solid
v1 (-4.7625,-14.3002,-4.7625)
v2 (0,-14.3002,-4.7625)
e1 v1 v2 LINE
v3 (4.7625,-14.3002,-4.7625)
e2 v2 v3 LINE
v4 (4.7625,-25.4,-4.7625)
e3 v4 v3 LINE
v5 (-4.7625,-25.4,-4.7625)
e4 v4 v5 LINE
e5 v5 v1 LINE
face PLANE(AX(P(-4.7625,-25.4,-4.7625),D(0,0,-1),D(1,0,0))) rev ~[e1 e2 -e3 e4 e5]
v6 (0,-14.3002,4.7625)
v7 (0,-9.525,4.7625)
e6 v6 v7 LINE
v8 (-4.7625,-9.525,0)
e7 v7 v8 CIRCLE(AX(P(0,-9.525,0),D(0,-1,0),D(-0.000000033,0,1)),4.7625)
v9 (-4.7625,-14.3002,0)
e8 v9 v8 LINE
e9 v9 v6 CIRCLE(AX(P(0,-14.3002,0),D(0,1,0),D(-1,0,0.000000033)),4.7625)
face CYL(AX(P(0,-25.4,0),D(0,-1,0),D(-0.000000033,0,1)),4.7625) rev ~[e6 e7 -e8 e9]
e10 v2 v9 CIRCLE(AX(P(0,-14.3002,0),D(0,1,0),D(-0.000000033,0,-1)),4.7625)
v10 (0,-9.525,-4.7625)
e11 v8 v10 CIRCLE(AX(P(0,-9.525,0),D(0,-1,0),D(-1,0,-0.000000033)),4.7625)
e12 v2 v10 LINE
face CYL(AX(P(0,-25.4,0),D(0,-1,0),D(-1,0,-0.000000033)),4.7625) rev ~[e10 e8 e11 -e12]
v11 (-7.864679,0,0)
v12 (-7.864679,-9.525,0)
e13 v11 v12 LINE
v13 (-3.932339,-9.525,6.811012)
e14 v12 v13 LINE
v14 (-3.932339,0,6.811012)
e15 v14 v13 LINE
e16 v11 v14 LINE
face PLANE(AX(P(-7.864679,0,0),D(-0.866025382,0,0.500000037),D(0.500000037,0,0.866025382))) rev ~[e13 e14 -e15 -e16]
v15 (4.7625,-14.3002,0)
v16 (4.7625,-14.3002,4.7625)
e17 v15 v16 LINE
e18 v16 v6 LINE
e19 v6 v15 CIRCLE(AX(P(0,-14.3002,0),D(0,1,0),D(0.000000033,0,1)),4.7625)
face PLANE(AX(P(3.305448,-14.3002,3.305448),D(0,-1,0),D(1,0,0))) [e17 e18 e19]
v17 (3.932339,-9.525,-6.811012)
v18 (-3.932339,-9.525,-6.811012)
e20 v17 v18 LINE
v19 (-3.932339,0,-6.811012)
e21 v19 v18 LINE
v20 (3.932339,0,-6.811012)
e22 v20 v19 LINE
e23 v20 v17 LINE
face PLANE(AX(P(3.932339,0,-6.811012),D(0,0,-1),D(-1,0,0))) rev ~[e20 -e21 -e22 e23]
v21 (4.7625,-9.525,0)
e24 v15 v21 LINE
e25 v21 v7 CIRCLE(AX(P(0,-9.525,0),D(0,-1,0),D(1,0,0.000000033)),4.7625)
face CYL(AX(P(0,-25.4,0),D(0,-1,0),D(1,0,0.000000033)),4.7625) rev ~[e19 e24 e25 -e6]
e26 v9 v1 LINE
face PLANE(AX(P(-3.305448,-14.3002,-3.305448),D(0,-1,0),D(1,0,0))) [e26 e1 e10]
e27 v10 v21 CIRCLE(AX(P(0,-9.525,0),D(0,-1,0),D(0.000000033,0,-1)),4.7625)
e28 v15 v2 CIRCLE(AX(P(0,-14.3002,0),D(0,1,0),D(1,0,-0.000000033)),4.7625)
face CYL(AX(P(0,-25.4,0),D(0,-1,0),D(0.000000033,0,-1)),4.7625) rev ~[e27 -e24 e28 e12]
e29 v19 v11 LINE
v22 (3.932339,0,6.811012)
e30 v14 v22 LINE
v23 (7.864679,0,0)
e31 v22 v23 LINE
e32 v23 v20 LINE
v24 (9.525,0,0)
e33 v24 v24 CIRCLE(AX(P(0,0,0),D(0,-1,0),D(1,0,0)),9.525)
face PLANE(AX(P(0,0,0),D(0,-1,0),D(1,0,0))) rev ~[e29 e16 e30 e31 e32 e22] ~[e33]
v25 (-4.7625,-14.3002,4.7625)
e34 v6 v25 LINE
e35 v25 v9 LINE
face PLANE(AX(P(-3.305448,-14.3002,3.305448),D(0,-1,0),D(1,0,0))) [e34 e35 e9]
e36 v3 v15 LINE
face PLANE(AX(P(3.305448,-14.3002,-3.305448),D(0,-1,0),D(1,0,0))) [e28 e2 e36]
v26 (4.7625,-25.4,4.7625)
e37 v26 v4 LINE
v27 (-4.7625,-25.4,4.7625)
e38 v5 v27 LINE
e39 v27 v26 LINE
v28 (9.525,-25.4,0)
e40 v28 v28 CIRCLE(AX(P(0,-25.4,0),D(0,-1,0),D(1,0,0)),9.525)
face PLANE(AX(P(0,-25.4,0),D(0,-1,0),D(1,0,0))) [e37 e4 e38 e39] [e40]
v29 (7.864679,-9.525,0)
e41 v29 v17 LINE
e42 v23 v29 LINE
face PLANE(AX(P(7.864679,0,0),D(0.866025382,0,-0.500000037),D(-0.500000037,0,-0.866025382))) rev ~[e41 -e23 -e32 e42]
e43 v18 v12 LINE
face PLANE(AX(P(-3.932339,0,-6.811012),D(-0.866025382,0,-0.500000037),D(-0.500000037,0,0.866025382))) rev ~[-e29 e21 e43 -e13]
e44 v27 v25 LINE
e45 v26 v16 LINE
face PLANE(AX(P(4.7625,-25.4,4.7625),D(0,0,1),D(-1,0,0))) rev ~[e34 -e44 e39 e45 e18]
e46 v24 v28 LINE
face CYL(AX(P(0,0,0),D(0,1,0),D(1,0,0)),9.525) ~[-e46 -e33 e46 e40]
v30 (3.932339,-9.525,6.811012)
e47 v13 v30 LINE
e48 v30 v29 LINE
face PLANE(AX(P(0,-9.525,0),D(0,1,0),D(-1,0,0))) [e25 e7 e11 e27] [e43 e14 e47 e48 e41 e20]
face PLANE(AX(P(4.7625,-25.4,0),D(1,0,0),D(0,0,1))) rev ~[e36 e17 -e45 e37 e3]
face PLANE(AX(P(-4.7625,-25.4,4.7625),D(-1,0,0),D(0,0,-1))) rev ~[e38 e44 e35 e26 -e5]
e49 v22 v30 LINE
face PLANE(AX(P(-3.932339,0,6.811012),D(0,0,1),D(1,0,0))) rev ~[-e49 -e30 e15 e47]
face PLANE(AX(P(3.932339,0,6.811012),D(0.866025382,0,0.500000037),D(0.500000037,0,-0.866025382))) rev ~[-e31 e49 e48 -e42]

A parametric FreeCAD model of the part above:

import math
import FreeCAD as App
import Part
import Sketcher
Q = App.Units.Quantity


def add_polygon(sketch, points):
    """Adds a closed chain of lines whose ends are joined by coincident constraints."""
    first, n = sketch.GeometryCount, len(points)
    for a, b in zip(points, points[1:] + points[:1]):
        sketch.addGeometry(Part.LineSegment(App.Vector(*a, 0), App.Vector(*b, 0)), False)
    for i in range(n):
        sketch.addConstraint(Sketcher.Constraint("Coincident", first + i, 2, first + (i + 1) % n, 1))

doc = App.newDocument("Part")
params = doc.addObject("Spreadsheet::Sheet", "Params")
for row, (alias, value) in enumerate([
    ("sketch1_diameter", "0.75 in"),
    ("pad1_length", "1 in"),
    ("sketch2_radius", "0.1875 in"),
    ("sketch3_radius", "0.1875 in"),
    ("pocket2_length", "0.437 in"),
    ("pocket3_length", "0.375 in"),
], start=1):
    params.set(f"A{row}", alias)
    params.set(f"B{row}", "=" + value)
    params.setAlias(f"B{row}", alias)

body = doc.addObject("PartDesign::Body", "Body")

sketch1 = body.newObject("Sketcher::SketchObject", "Sketch")
sketch1.AttachmentSupport = (doc.getObject("XZ_Plane"), [""])
sketch1.MapMode = "FlatFace"
sketch1.addGeometry(Part.Circle(App.Vector(0, 0, 0), App.Vector(0, 0, 1), 10), False)
sketch1.addConstraint([
    Sketcher.Constraint("Coincident", 0, 3, -1, 1),
    Sketcher.Constraint("Diameter", 0, Q("0.75 in")),
])
sketch1.setExpression("Constraints[1]", "Params.sketch1_diameter")
pad1 = body.newObject("PartDesign::Pad", "Pad")
pad1.Profile = sketch1
pad1.setExpression("Length", "Params.pad1_length")

sketch2 = body.newObject("Sketcher::SketchObject", "Sketch001")
sketch2.AttachmentSupport = (doc.getObject("XZ_Plane"), [""])
sketch2.MapMode = "FlatFace"
sketch2.AttachmentOffset = App.Placement(App.Vector(0, 0, 1 * 25.4), App.Rotation())
sketch2.addGeometry([
    Part.ArcOfCircle(Part.Circle(App.Vector(0, 0, 0), App.Vector(0, 0, 1), 4.8), math.radians(0), math.radians(90)),
    Part.ArcOfCircle(Part.Circle(App.Vector(0, 0, 0), App.Vector(0, 0, 1), 4.8), math.radians(90), math.radians(180)),
    Part.ArcOfCircle(Part.Circle(App.Vector(0, 0, 0), App.Vector(0, 0, 1), 4.8), math.radians(-180), math.radians(-90)),
    Part.ArcOfCircle(Part.Circle(App.Vector(0, 0, 0), App.Vector(0, 0, 1), 4.8), math.radians(-90), math.radians(0)),
], False)
sketch2.addConstraint([
    Sketcher.Constraint("Tangent", 0, 2, 1, 1),
    Sketcher.Constraint("Tangent", 1, 2, 2, 1),
    Sketcher.Constraint("Tangent", 2, 2, 3, 1),
    Sketcher.Constraint("Tangent", 3, 2, 0, 1),
    Sketcher.Constraint("Coincident", 0, 3, -1, 1),
    Sketcher.Constraint("Equal", 0, 1),
    Sketcher.Constraint("PointOnObject", 0, 2, -2),
    Sketcher.Constraint("PointOnObject", 1, 2, -1),
    Sketcher.Constraint("PointOnObject", 2, 2, -2),
    Sketcher.Constraint("PointOnObject", 3, 2, -1),
    Sketcher.Constraint("Radius", 0, Q("0.1875 in")),
])
sketch2.setExpression("Constraints[10]", "Params.sketch2_radius")
pocket1 = body.newObject("PartDesign::Pocket", "Pocket")
pocket1.Profile = sketch2
pocket1.Type = "ThroughAll"

sketch3 = body.newObject("Sketcher::SketchObject", "Sketch002")
sketch3.AttachmentSupport = (doc.getObject("XZ_Plane"), [""])
sketch3.MapMode = "FlatFace"
sketch3.AttachmentOffset = App.Placement(App.Vector(0, 0, 1 * 25.4), App.Rotation())
sketch3.addGeometry([
    Part.LineSegment(App.Vector(4.8, 0, 0), App.Vector(4.8, 4.8, 0)),
    Part.LineSegment(App.Vector(4.8, 4.8, 0), App.Vector(0, 4.8, 0)),
    Part.ArcOfCircle(Part.Circle(App.Vector(0, 0, 0), App.Vector(0, 0, 1), 4.8), math.radians(0), math.radians(90)),
    Part.ArcOfCircle(Part.Circle(App.Vector(0, 0, 0), App.Vector(0, 0, 1), 4.8), math.radians(90), math.radians(180)),
    Part.LineSegment(App.Vector(0, 4.8, 0), App.Vector(-4.8, 4.8, 0)),
    Part.LineSegment(App.Vector(-4.8, 4.8, 0), App.Vector(-4.8, 0, 0)),
    Part.LineSegment(App.Vector(4.8, -4.8, 0), App.Vector(4.8, 0, 0)),
    Part.ArcOfCircle(Part.Circle(App.Vector(0, 0, 0), App.Vector(0, 0, 1), 4.8), math.radians(-90), math.radians(0)),
    Part.LineSegment(App.Vector(0, -4.8, 0), App.Vector(4.8, -4.8, 0)),
    Part.ArcOfCircle(Part.Circle(App.Vector(0, 0, 0), App.Vector(0, 0, 1), 4.8), math.radians(-180), math.radians(-90)),
    Part.LineSegment(App.Vector(-4.8, 0, 0), App.Vector(-4.8, -4.8, 0)),
    Part.LineSegment(App.Vector(-4.8, -4.8, 0), App.Vector(0, -4.8, 0)),
], False)
sketch3.addConstraint([
    Sketcher.Constraint("Coincident", 0, 2, 1, 1),
    Sketcher.Constraint("Tangent", 1, 2, 2, 2),
    Sketcher.Constraint("Tangent", 2, 1, 0, 1),
    Sketcher.Constraint("Tangent", 3, 1, 4, 1),
    Sketcher.Constraint("Coincident", 4, 2, 5, 1),
    Sketcher.Constraint("Tangent", 5, 2, 3, 2),
    Sketcher.Constraint("Tangent", 6, 2, 7, 2),
    Sketcher.Constraint("Tangent", 7, 1, 8, 1),
    Sketcher.Constraint("Coincident", 8, 2, 6, 1),
    Sketcher.Constraint("Tangent", 9, 1, 10, 1),
    Sketcher.Constraint("Coincident", 10, 2, 11, 1),
    Sketcher.Constraint("Tangent", 11, 2, 9, 2),
    Sketcher.Constraint("Vertical", 0),
    Sketcher.Constraint("Horizontal", 1),
    Sketcher.Constraint("Horizontal", 4),
    Sketcher.Constraint("Vertical", 5),
    Sketcher.Constraint("Vertical", 6),
    Sketcher.Constraint("Horizontal", 8),
    Sketcher.Constraint("Vertical", 10),
    Sketcher.Constraint("Horizontal", 11),
    Sketcher.Constraint("Coincident", 2, 3, -1, 1),
    Sketcher.Constraint("Coincident", 3, 3, -1, 1),
    Sketcher.Constraint("Coincident", 7, 3, -1, 1),
    Sketcher.Constraint("Coincident", 9, 3, -1, 1),
    Sketcher.Constraint("Equal", 2, 3),
    Sketcher.Constraint("Equal", 3, 7),
    Sketcher.Constraint("Equal", 7, 9),
    Sketcher.Constraint("Radius", 2, Q("0.1875 in")),
])
sketch3.setExpression("Constraints[27]", "Params.sketch3_radius")
pocket2 = body.newObject("PartDesign::Pocket", "Pocket001")
pocket2.Profile = sketch3
pocket2.setExpression("Length", "Params.pocket2_length")

sketch4 = body.newObject("Sketcher::SketchObject", "Sketch003")
sketch4.AttachmentSupport = (doc.getObject("XZ_Plane"), [""])
sketch4.MapMode = "FlatFace"
add_polygon(sketch4, [(-4, 7), (4, 7), (8, 0), (4, -7), (-4, -7), (-8, 0)])
sketch4.addConstraint([
    Sketcher.Constraint("Horizontal", 0),
    Sketcher.Constraint("Horizontal", 3),
    Sketcher.Constraint("Symmetric", 0, 2, 3, 2, -1, 1),
    Sketcher.Constraint("Symmetric", 1, 2, 4, 2, -1, 1),
    Sketcher.Constraint("PointOnObject", 1, 2, -1),
    Sketcher.Constraint("Parallel", 2, 5),
    Sketcher.Constraint("Vertical", 0, 2, 2, 2),
    Sketcher.Constraint("Angle", 1, Q("-59.999998 deg")),
    Sketcher.Constraint("DistanceY", 2, 2, 0, 2, Q("0.5363002 in")),
    Sketcher.Constraint("DistanceX", 0, 1, 0, 2, 7.864678),
])
pocket3 = body.newObject("PartDesign::Pocket", "Pocket002")
pocket3.Profile = sketch4
pocket3.setExpression("Length", "Params.pocket3_length")
pocket3.Reversed = True

doc.recompute()
